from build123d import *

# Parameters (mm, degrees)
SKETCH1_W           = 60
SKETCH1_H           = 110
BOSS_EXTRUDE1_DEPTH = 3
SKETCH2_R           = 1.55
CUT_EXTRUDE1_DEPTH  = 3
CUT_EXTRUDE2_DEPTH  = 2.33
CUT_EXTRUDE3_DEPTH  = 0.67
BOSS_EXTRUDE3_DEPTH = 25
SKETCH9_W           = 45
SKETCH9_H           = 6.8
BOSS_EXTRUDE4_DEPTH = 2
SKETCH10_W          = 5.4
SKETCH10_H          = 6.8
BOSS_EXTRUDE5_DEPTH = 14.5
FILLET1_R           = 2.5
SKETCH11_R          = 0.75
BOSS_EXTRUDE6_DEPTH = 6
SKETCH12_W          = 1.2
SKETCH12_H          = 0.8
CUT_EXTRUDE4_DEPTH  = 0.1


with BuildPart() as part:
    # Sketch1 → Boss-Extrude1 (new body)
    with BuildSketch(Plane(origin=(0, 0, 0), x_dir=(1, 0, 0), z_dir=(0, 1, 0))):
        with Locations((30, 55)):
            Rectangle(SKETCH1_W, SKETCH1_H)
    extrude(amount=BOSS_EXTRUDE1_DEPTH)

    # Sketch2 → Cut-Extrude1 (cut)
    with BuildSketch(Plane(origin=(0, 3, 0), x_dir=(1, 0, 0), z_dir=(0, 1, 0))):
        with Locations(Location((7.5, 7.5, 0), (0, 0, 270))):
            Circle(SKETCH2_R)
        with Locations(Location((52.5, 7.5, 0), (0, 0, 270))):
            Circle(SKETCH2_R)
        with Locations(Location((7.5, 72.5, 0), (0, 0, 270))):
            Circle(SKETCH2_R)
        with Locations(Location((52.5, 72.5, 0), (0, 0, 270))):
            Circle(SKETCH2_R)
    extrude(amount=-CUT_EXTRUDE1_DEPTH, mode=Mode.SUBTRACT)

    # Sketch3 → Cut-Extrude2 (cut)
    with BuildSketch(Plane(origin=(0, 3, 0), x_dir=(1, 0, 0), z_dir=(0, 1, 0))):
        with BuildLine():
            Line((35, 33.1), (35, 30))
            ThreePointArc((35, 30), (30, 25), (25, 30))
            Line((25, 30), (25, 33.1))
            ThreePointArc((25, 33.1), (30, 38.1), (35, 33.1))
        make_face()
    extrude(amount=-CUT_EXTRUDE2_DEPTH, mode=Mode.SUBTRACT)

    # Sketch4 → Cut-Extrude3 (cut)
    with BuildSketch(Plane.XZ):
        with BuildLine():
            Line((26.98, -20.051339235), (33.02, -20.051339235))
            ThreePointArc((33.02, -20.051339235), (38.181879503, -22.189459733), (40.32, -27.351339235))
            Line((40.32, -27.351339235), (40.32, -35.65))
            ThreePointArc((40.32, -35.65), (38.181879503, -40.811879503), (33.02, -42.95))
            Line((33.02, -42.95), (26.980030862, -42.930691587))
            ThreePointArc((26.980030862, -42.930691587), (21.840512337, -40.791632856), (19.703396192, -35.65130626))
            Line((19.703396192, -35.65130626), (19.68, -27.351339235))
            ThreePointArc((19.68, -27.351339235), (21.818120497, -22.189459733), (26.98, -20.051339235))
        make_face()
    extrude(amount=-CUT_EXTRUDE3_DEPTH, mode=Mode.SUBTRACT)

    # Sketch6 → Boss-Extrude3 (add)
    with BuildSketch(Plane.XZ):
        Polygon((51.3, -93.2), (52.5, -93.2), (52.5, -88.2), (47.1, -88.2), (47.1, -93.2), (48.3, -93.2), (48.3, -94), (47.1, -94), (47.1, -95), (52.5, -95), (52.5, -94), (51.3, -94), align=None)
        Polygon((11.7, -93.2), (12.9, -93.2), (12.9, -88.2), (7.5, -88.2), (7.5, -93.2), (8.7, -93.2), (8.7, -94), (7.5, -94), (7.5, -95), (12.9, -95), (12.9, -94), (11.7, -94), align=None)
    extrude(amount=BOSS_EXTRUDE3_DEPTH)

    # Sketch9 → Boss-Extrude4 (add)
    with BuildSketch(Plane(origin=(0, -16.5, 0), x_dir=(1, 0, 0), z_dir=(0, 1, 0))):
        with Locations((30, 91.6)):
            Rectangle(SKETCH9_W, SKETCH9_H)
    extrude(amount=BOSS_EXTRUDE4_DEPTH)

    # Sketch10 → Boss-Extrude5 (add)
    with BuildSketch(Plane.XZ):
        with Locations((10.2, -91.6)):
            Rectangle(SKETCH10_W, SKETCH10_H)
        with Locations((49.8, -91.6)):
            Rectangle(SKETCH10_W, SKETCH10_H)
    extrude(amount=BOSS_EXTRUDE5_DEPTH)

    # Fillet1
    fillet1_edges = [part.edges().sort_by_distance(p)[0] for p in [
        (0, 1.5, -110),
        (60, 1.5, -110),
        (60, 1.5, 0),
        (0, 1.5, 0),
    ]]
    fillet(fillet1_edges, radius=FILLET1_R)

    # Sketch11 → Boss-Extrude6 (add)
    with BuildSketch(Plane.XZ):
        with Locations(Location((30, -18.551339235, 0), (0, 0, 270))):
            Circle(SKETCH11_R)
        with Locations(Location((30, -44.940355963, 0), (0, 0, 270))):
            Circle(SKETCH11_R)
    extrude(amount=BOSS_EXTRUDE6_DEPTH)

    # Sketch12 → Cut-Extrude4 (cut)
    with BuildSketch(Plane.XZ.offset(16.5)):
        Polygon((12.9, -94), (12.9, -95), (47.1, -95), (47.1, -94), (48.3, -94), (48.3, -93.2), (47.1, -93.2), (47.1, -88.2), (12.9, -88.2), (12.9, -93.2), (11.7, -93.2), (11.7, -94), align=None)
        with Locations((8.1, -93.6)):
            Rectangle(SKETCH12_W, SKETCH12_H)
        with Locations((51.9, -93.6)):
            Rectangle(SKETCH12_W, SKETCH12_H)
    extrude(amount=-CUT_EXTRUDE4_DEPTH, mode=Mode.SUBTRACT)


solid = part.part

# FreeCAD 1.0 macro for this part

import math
import FreeCAD as App
import Part
import Sketcher
from FreeCAD import Vector


def edges_at(feature, points):
    """Names of the edges that pass closest to the given points."""
    edges = feature.Shape.Edges
    near = lambda p: min(range(len(edges)), key=lambda i: edges[i].distToShape(Part.Vertex(*p))[0])
    return sorted({f"Edge{near(p) + 1}" for p in points})


def add_polygon(sketch, points):
    """Adds a closed chain of lines whose ends are joined by coincident constraints."""
    first, n = sketch.GeometryCount, len(points)
    for a, b in zip(points, points[1:] + points[:1]):
        sketch.addGeometry(Part.LineSegment(App.Vector(*a, 0), App.Vector(*b, 0)), False)
    for i in range(n):
        sketch.addConstraint(Sketcher.Constraint("Coincident", first + i, 2, first + (i + 1) % n, 1))

doc = App.newDocument("Part")
body = doc.addObject("PartDesign::Body", "Body")

# Sketch on XZ plane
sketch1 = body.newObject("Sketcher::SketchObject", "Sketch")
sketch1.AttachmentSupport = (doc.getObject("XZ_Plane"), [""])
sketch1.MapMode = "FlatFace"
add_polygon(sketch1, [(0, -110), (0, 0), (60, 0), (60, -110)])  # lines 0-3
sketch1.addConstraint(Sketcher.Constraint("Vertical", 0))
sketch1.addConstraint(Sketcher.Constraint("Horizontal", 1))
sketch1.addConstraint(Sketcher.Constraint("Vertical", 2))
sketch1.addConstraint(Sketcher.Constraint("Horizontal", 3))
sketch1.addConstraint(Sketcher.Constraint("Coincident", 0, 2, -1, 1))
sketch1.addConstraint(Sketcher.Constraint("DistanceX", 1, 1, 1, 2, 60.0))
sketch1.addConstraint(Sketcher.Constraint("DistanceY", 0, 1, 0, 2, 110.0))
pad1 = body.newObject("PartDesign::Pad", "Pad")
pad1.Profile = sketch1
pad1.Length = 3
pad1.Reversed = True

# Sketch on XZ plane
sketch2 = body.newObject("Sketcher::SketchObject", "Sketch001")
sketch2.AttachmentSupport = (doc.getObject("XZ_Plane"), [""])
sketch2.MapMode = "FlatFace"
sketch2.AttachmentOffset = App.Placement(Vector(0, 0, -3), App.Rotation())
sketch2.addGeometry(Part.Circle(Vector(7.5, -7.5, 0), Vector(0, 0, 1), 1.6), False)
sketch2.addGeometry(Part.Circle(Vector(52.5, -7.5, 0), Vector(0, 0, 1), 1.6), False)
sketch2.addGeometry(Part.Circle(Vector(7.5, -72.5, 0), Vector(0, 0, 1), 1.6), False)
sketch2.addGeometry(Part.Circle(Vector(52.5, -72.5, 0), Vector(0, 0, 1), 1.6), False)
sketch2.addConstraint(Sketcher.Constraint("Equal", 0, 1))
sketch2.addConstraint(Sketcher.Constraint("Equal", 1, 2))
sketch2.addConstraint(Sketcher.Constraint("Equal", 2, 3))
sketch2.addConstraint(Sketcher.Constraint("Horizontal", 0, 3, 1, 3))
sketch2.addConstraint(Sketcher.Constraint("Horizontal", 2, 3, 3, 3))
sketch2.addConstraint(Sketcher.Constraint("Vertical", 0, 3, 2, 3))
sketch2.addConstraint(Sketcher.Constraint("Vertical", 1, 3, 3, 3))
sketch2.addConstraint(Sketcher.Constraint("Diameter", 0, 3.1))
sketch2.addConstraint(Sketcher.Constraint("DistanceX", 0, 3, 1, 3, 45.0))
sketch2.addConstraint(Sketcher.Constraint("DistanceY", 2, 3, 0, 3, 65.0))
sketch2.addConstraint(Sketcher.Constraint("DistanceX", -1, 1, 0, 3, 7.5))
sketch2.addConstraint(Sketcher.Constraint("DistanceY", 0, 3, -1, 1, 7.5))
pocket1 = body.newObject("PartDesign::Pocket", "Pocket")
pocket1.Profile = sketch2
pocket1.Length = 3
pocket1.Reversed = True

# Sketch on XZ plane
sketch3 = body.newObject("Sketcher::SketchObject", "Sketch002")
sketch3.AttachmentSupport = (doc.getObject("XZ_Plane"), [""])
sketch3.MapMode = "FlatFace"
sketch3.AttachmentOffset = App.Placement(Vector(0, 0, -3), App.Rotation())
sketch3.addGeometry(Part.LineSegment(Vector(35, -30, 0), Vector(35, -33.1, 0)), False)
sketch3.addGeometry(Part.ArcOfCircle(Part.Circle(Vector(30, -33.1, 0), Vector(0, 0, 1), 5), math.radians(180), math.radians(360)), False)
sketch3.addGeometry(Part.LineSegment(Vector(25, -33.1, 0), Vector(25, -30, 0)), False)
sketch3.addGeometry(Part.ArcOfCircle(Part.Circle(Vector(30, -30, 0), Vector(0, 0, 1), 5), math.radians(0), math.radians(180)), False)
sketch3.addConstraint(Sketcher.Constraint("Tangent", 0, 2, 1, 2))
sketch3.addConstraint(Sketcher.Constraint("Tangent", 1, 1, 2, 1))
sketch3.addConstraint(Sketcher.Constraint("Tangent", 2, 2, 3, 2))
sketch3.addConstraint(Sketcher.Constraint("Tangent", 3, 1, 0, 1))
sketch3.addConstraint(Sketcher.Constraint("Vertical", 0))
sketch3.addConstraint(Sketcher.Constraint("Vertical", 2))
sketch3.addConstraint(Sketcher.Constraint("Radius", 1, 5.0))
sketch3.addConstraint(Sketcher.Constraint("DistanceY", 0, 2, 0, 1, 3.1))
sketch3.addConstraint(Sketcher.Constraint("DistanceX", -1, 1, 1, 3, 30.0))
sketch3.addConstraint(Sketcher.Constraint("DistanceY", 3, 3, -1, 1, 30.0))
pocket2 = body.newObject("PartDesign::Pocket", "Pocket001")
pocket2.Profile = sketch3
pocket2.Length = 2.33
pocket2.Reversed = True

# Sketch on XZ plane
sketch4 = body.newObject("Sketcher::SketchObject", "Sketch003")
sketch4.AttachmentSupport = (doc.getObject("XZ_Plane"), [""])
sketch4.MapMode = "FlatFace"
sketch4.addGeometry(Part.LineSegment(Vector(33, -20, 0), Vector(27, -20, 0)), False)
sketch4.addGeometry(Part.ArcOfCircle(Part.Circle(Vector(27, -27, 0), Vector(0, 0, 1), 7), math.radians(90), math.radians(180)), False)
sketch4.addGeometry(Part.LineSegment(Vector(20, -27, 0), Vector(20, -36, 0)), False)
sketch4.addGeometry(Part.ArcOfCircle(Part.Circle(Vector(27, -36, 0), Vector(0, 0, 1), 7), math.radians(-180), math.radians(-90)), False)
sketch4.addGeometry(Part.LineSegment(Vector(27, -43, 0), Vector(33, -43, 0)), False)
sketch4.addGeometry(Part.ArcOfCircle(Part.Circle(Vector(33, -36, 0), Vector(0, 0, 1), 7), math.radians(-90), math.radians(0)), False)
sketch4.addGeometry(Part.LineSegment(Vector(40, -36, 0), Vector(40, -27, 0)), False)
sketch4.addGeometry(Part.ArcOfCircle(Part.Circle(Vector(33, -27, 0), Vector(0, 0, 1), 7), math.radians(0), math.radians(90)), False)
sketch4.addConstraint(Sketcher.Constraint("Tangent", 0, 2, 1, 1))
sketch4.addConstraint(Sketcher.Constraint("Coincident", 1, 2, 2, 1))
sketch4.addConstraint(Sketcher.Constraint("Tangent", 2, 2, 3, 1))
sketch4.addConstraint(Sketcher.Constraint("Tangent", 3, 2, 4, 1))
sketch4.addConstraint(Sketcher.Constraint("Coincident", 4, 2, 5, 1))
sketch4.addConstraint(Sketcher.Constraint("Tangent", 5, 2, 6, 1))
sketch4.addConstraint(Sketcher.Constraint("Tangent", 6, 2, 7, 1))
sketch4.addConstraint(Sketcher.Constraint("Tangent", 7, 2, 0, 1))
sketch4.addConstraint(Sketcher.Constraint("Horizontal", 0))
sketch4.addConstraint(Sketcher.Constraint("Vertical", 6))
sketch4.addConstraint(Sketcher.Constraint("Equal", 1, 3))
sketch4.addConstraint(Sketcher.Constraint("Equal", 3, 5))
sketch4.addConstraint(Sketcher.Constraint("Equal", 5, 7))
sketch4.addConstraint(Sketcher.Constraint("Horizontal", 7, 3, 1, 2))
sketch4.addConstraint(Sketcher.Constraint("Vertical", 7, 3, 4, 2))
sketch4.addConstraint(Sketcher.Constraint("Radius", 1, 7.3))
sketch4.addConstraint(Sketcher.Constraint("Distance", 2, 8.3))
sketch4.addConstraint(Sketcher.Constraint("DistanceX", 0, 2, 0, 1, 6.04))
sketch4.addConstraint(Sketcher.Constraint("Distance", 4, 6.04))
sketch4.addConstraint(Sketcher.Constraint("DistanceX", -1, 1, 1, 3, 26.98))
sketch4.addConstraint(Sketcher.Constraint("DistanceY", 5, 3, -1, 1, 35.65))
sketch4.addConstraint(Sketcher.Constraint("DistanceY", 6, 1, 6, 2, 8.298661))
pocket3 = body.newObject("PartDesign::Pocket", "Pocket002")
pocket3.Profile = sketch4
pocket3.Length = 0.67

# Sketch on XZ plane
sketch5 = body.newObject("Sketcher::SketchObject", "Sketch004")
sketch5.AttachmentSupport = (doc.getObject("XZ_Plane"), [""])
sketch5.MapMode = "FlatFace"
add_polygon(sketch5, [(51.3, -93.2), (52.5, -93.2), (52.5, -88.2), (47.1, -88.2), (47.1, -93.2), (48.3, -93.2), (48.3, -94), (47.1, -94), (47.1, -95), (52.5, -95), (52.5, -94), (51.3, -94)])  # lines 0-11
add_polygon(sketch5, [(11.7, -93.2), (12.9, -93.2), (12.9, -88.2), (7.5, -88.2), (7.5, -93.2), (8.7, -93.2), (8.7, -94), (7.5, -94), (7.5, -95), (12.9, -95), (12.9, -94), (11.7, -94)])  # lines 12-23
sketch5.addConstraint(Sketcher.Constraint("Horizontal", 0))
sketch5.addConstraint(Sketcher.Constraint("Vertical", 1))
sketch5.addConstraint(Sketcher.Constraint("Horizontal", 2))
sketch5.addConstraint(Sketcher.Constraint("Vertical", 3))
sketch5.addConstraint(Sketcher.Constraint("Horizontal", 4))
sketch5.addConstraint(Sketcher.Constraint("Vertical", 5))
sketch5.addConstraint(Sketcher.Constraint("Horizontal", 6))
sketch5.addConstraint(Sketcher.Constraint("Vertical", 7))
sketch5.addConstraint(Sketcher.Constraint("Horizontal", 8))
sketch5.addConstraint(Sketcher.Constraint("Vertical", 9))
sketch5.addConstraint(Sketcher.Constraint("Horizontal", 10))
sketch5.addConstraint(Sketcher.Constraint("Vertical", 11))
sketch5.addConstraint(Sketcher.Constraint("Horizontal", 12))
sketch5.addConstraint(Sketcher.Constraint("Vertical", 13))
sketch5.addConstraint(Sketcher.Constraint("Horizontal", 14))
sketch5.addConstraint(Sketcher.Constraint("Vertical", 15))
sketch5.addConstraint(Sketcher.Constraint("Horizontal", 16))
sketch5.addConstraint(Sketcher.Constraint("Vertical", 17))
sketch5.addConstraint(Sketcher.Constraint("Horizontal", 18))
sketch5.addConstraint(Sketcher.Constraint("Vertical", 19))
sketch5.addConstraint(Sketcher.Constraint("Horizontal", 20))
sketch5.addConstraint(Sketcher.Constraint("Vertical", 21))
sketch5.addConstraint(Sketcher.Constraint("Horizontal", 22))
sketch5.addConstraint(Sketcher.Constraint("Vertical", 23))
sketch5.addConstraint(Sketcher.Constraint("Horizontal", 0, 2, 3, 2))
sketch5.addConstraint(Sketcher.Constraint("Horizontal", 6, 2, 9, 2))
sketch5.addConstraint(Sketcher.Constraint("Horizontal", 11, 2, 12, 2))
sketch5.addConstraint(Sketcher.Constraint("Horizontal", 2, 2, 13, 2))
sketch5.addConstraint(Sketcher.Constraint("Horizontal", 12, 2, 15, 2))
sketch5.addConstraint(Sketcher.Constraint("Horizontal", 10, 2, 17, 2))
sketch5.addConstraint(Sketcher.Constraint("Horizontal", 8, 2, 19, 2))
sketch5.addConstraint(Sketcher.Constraint("Horizontal", 18, 2, 21, 2))
sketch5.addConstraint(Sketcher.Constraint("Vertical", 3, 2, 6, 2))
sketch5.addConstraint(Sketcher.Constraint("Vertical", 1, 2, 8, 2))
sketch5.addConstraint(Sketcher.Constraint("Vertical", 15, 2, 18, 2))
sketch5.addConstraint(Sketcher.Constraint("Vertical", 13, 2, 20, 2))
sketch5.addConstraint(Sketcher.Constraint("Equal", 0, 4))
sketch5.addConstraint(Sketcher.Constraint("Equal", 10, 12))
sketch5.addConstraint(Sketcher.Constraint("Equal", 8, 14))
sketch5.addConstraint(Sketcher.Constraint("Equal", 12, 16))
sketch5.addConstraint(Sketcher.Constraint("DistanceY", 1, 1, 1, 2, 5.0))
sketch5.addConstraint(Sketcher.Constraint("DistanceY", 7, 2, 7, 1, 1.0))
sketch5.addConstraint(Sketcher.Constraint("DistanceX", 0, 1, 0, 2, 1.2))
sketch5.addConstraint(Sketcher.Constraint("DistanceX", 2, 2, 2, 1, 5.4))
sketch5.addConstraint(Sketcher.Constraint("DistanceY", 5, 2, 5, 1, 0.8))
sketch5.addConstraint(Sketcher.Constraint("DistanceY", 5, 2, -1, 1, 94.0))
sketch5.addConstraint(Sketcher.Constraint("DistanceX", -1, 1, 0, 2, 52.5))
sketch5.addConstraint(Sketcher.Constraint("DistanceX", -1, 1, 12, 2, 12.9))
pad2 = body.newObject("PartDesign::Pad", "Pad001")
pad2.Profile = sketch5
pad2.Length = 25

# Sketch on XZ plane
sketch6 = body.newObject("Sketcher::SketchObject", "Sketch005")
sketch6.AttachmentSupport = (doc.getObject("XZ_Plane"), [""])
sketch6.MapMode = "FlatFace"
sketch6.AttachmentOffset = App.Placement(Vector(0, 0, 16.5), App.Rotation())
add_polygon(sketch6, [(8, -95), (8, -88), (52, -88), (52, -95)])  # lines 0-3
sketch6.addConstraint(Sketcher.Constraint("Vertical", 0))
sketch6.addConstraint(Sketcher.Constraint("Horizontal", 1))
sketch6.addConstraint(Sketcher.Constraint("Vertical", 2))
sketch6.addConstraint(Sketcher.Constraint("Horizontal", 3))
sketch6.addConstraint(Sketcher.Constraint("DistanceX", 1, 1, 1, 2, 45.0))
sketch6.addConstraint(Sketcher.Constraint("DistanceY", 0, 1, 0, 2, 6.8))
sketch6.addConstraint(Sketcher.Constraint("DistanceY", 2, 2, -1, 1, 95.0))
sketch6.addConstraint(Sketcher.Constraint("DistanceX", -1, 1, 0, 2, 7.5))
pad3 = body.newObject("PartDesign::Pad", "Pad002")
pad3.Profile = sketch6
pad3.Length = 2
pad3.Reversed = True

# Sketch on XZ plane
sketch7 = body.newObject("Sketcher::SketchObject", "Sketch006")
sketch7.AttachmentSupport = (doc.getObject("XZ_Plane"), [""])
sketch7.MapMode = "FlatFace"
add_polygon(sketch7, [(8, -88), (8, -95), (13, -95), (13, -88)])  # lines 0-3
add_polygon(sketch7, [(47, -88), (47, -95), (52, -95), (52, -88)])  # lines 4-7
sketch7.addConstraint(Sketcher.Constraint("Vertical", 0))
sketch7.addConstraint(Sketcher.Constraint("Horizontal", 1))
sketch7.addConstraint(Sketcher.Constraint("Vertical", 2))
sketch7.addConstraint(Sketcher.Constraint("Horizontal", 3))
sketch7.addConstraint(Sketcher.Constraint("Vertical", 4))
sketch7.addConstraint(Sketcher.Constraint("Horizontal", 5))
sketch7.addConstraint(Sketcher.Constraint("Vertical", 6))
sketch7.addConstraint(Sketcher.Constraint("Horizontal", 7))
sketch7.addConstraint(Sketcher.Constraint("Horizontal", 1, 2, 4, 2))
sketch7.addConstraint(Sketcher.Constraint("Horizontal", 3, 2, 6, 2))
sketch7.addConstraint(Sketcher.Constraint("Equal", 3, 5))
sketch7.addConstraint(Sketcher.Constraint("DistanceX", 1, 1, 1, 2, 5.4))
sketch7.addConstraint(Sketcher.Constraint("DistanceY", 0, 2, 0, 1, 6.8))
sketch7.addConstraint(Sketcher.Constraint("DistanceY", 0, 2, -1, 1, 95.0))
sketch7.addConstraint(Sketcher.Constraint("DistanceX", 0, 2, 5, 2, 45.0))
sketch7.addConstraint(Sketcher.Constraint("DistanceX", -1, 1, 0, 2, 7.5))
pad4 = body.newObject("PartDesign::Pad", "Pad003")
pad4.Profile = sketch7
pad4.Length = 14.5
doc.recompute()

fillet = body.newObject("PartDesign::Fillet", "Fillet")
fillet.Base = (pad4, edges_at(pad4, [
    (0, 1.5, -110),
    (60, 1.5, -110),
    (60, 1.5, 0),
    (0, 1.5, 0),
]))
fillet.Radius = 2.5

# Sketch on XZ plane
sketch8 = body.newObject("Sketcher::SketchObject", "Sketch007")
sketch8.AttachmentSupport = (doc.getObject("XZ_Plane"), [""])
sketch8.MapMode = "FlatFace"
sketch8.addGeometry(Part.Circle(Vector(30, -18.6, 0), Vector(0, 0, 1), 0.8), False)
sketch8.addGeometry(Part.Circle(Vector(30, -44.9, 0), Vector(0, 0, 1), 0.8), False)
sketch8.addConstraint(Sketcher.Constraint("Equal", 0, 1))
sketch8.addConstraint(Sketcher.Constraint("Vertical", 0, 3, 1, 3))
sketch8.addConstraint(Sketcher.Constraint("Diameter", 0, 1.5))
sketch8.addConstraint(Sketcher.Constraint("DistanceX", -1, 1, 0, 3, 30.0))
sketch8.addConstraint(Sketcher.Constraint("DistanceY", 0, 3, -1, 1, 18.551339))
sketch8.addConstraint(Sketcher.Constraint("DistanceY", 1, 3, -1, 1, 44.940356))
pad5 = body.newObject("PartDesign::Pad", "Pad004")
pad5.Profile = sketch8
pad5.Length = 6

# Sketch on XZ plane
sketch9 = body.newObject("Sketcher::SketchObject", "Sketch008")
sketch9.AttachmentSupport = (doc.getObject("XZ_Plane"), [""])
sketch9.MapMode = "FlatFace"
sketch9.AttachmentOffset = App.Placement(Vector(0, 0, 16.5), App.Rotation())
add_polygon(sketch9, [(12.9, -94), (12.9, -95), (47.1, -95), (47.1, -94), (48.3, -94), (48.3, -93.2), (47.1, -93.2), (47.1, -88.2), (12.9, -88.2), (12.9, -93.2), (11.7, -93.2), (11.7, -94)])  # lines 0-11
add_polygon(sketch9, [(7.5, -93.2), (7.5, -94), (8.7, -94), (8.7, -93.2)])  # lines 12-15
add_polygon(sketch9, [(51.3, -93.2), (51.3, -94), (52.5, -94), (52.5, -93.2)])  # lines 16-19
sketch9.addConstraint(Sketcher.Constraint("Vertical", 0))
sketch9.addConstraint(Sketcher.Constraint("Horizontal", 1))
sketch9.addConstraint(Sketcher.Constraint("Vertical", 2))
sketch9.addConstraint(Sketcher.Constraint("Horizontal", 3))
sketch9.addConstraint(Sketcher.Constraint("Vertical", 4))
sketch9.addConstraint(Sketcher.Constraint("Horizontal", 5))
sketch9.addConstraint(Sketcher.Constraint("Vertical", 6))
sketch9.addConstraint(Sketcher.Constraint("Horizontal", 7))
sketch9.addConstraint(Sketcher.Constraint("Vertical", 8))
sketch9.addConstraint(Sketcher.Constraint("Horizontal", 9))
sketch9.addConstraint(Sketcher.Constraint("Vertical", 10))
sketch9.addConstraint(Sketcher.Constraint("Horizontal", 11))
sketch9.addConstraint(Sketcher.Constraint("Vertical", 12))
sketch9.addConstraint(Sketcher.Constraint("Horizontal", 13))
sketch9.addConstraint(Sketcher.Constraint("Vertical", 14))
sketch9.addConstraint(Sketcher.Constraint("Horizontal", 15))
sketch9.addConstraint(Sketcher.Constraint("Vertical", 16))
sketch9.addConstraint(Sketcher.Constraint("Horizontal", 17))
sketch9.addConstraint(Sketcher.Constraint("Vertical", 18))
sketch9.addConstraint(Sketcher.Constraint("Horizontal", 19))
sketch9.addConstraint(Sketcher.Constraint("Horizontal", 5, 2, 8, 2))
sketch9.addConstraint(Sketcher.Constraint("Horizontal", 3, 2, 10, 2))
sketch9.addConstraint(Sketcher.Constraint("Horizontal", 11, 2, 12, 2))
sketch9.addConstraint(Sketcher.Constraint("Horizontal", 9, 2, 14, 2))
sketch9.addConstraint(Sketcher.Constraint("Horizontal", 13, 2, 16, 2))
sketch9.addConstraint(Sketcher.Constraint("Horizontal", 15, 2, 18, 2))
sketch9.addConstraint(Sketcher.Constraint("Vertical", 2, 2, 5, 2))
sketch9.addConstraint(Sketcher.Constraint("Vertical", 0, 2, 7, 2))
sketch9.addConstraint(Sketcher.Constraint("Equal", 5, 9))
sketch9.addConstraint(Sketcher.Constraint("Equal", 11, 13))
sketch9.addConstraint(Sketcher.Constraint("Equal", 15, 17))
sketch9.addConstraint(Sketcher.Constraint("DistanceY", 0, 2, 0, 1, 1.0))
sketch9.addConstraint(Sketcher.Constraint("DistanceY", 6, 1, 6, 2, 5.0))
sketch9.addConstraint(Sketcher.Constraint("DistanceX", 1, 1, 1, 2, 34.2))
sketch9.addConstraint(Sketcher.Constraint("DistanceX", 3, 1, 3, 2, 1.2))
sketch9.addConstraint(Sketcher.Constraint("DistanceY", 4, 1, 4, 2, 0.8))
sketch9.addConstraint(Sketcher.Constraint("DistanceY", 0, 2, -1, 1, 95.0))
sketch9.addConstraint(Sketcher.Constraint("DistanceX", 13, 2, 10, 2, 3.0))
sketch9.addConstraint(Sketcher.Constraint("DistanceX", 3, 2, 16, 2, 3.0))
sketch9.addConstraint(Sketcher.Constraint("DistanceX", -1, 1, 0, 2, 12.9))
pocket4 = body.newObject("PartDesign::Pocket", "Pocket003")
pocket4.Profile = sketch9
pocket4.Length = 0.1

doc.recompute()
